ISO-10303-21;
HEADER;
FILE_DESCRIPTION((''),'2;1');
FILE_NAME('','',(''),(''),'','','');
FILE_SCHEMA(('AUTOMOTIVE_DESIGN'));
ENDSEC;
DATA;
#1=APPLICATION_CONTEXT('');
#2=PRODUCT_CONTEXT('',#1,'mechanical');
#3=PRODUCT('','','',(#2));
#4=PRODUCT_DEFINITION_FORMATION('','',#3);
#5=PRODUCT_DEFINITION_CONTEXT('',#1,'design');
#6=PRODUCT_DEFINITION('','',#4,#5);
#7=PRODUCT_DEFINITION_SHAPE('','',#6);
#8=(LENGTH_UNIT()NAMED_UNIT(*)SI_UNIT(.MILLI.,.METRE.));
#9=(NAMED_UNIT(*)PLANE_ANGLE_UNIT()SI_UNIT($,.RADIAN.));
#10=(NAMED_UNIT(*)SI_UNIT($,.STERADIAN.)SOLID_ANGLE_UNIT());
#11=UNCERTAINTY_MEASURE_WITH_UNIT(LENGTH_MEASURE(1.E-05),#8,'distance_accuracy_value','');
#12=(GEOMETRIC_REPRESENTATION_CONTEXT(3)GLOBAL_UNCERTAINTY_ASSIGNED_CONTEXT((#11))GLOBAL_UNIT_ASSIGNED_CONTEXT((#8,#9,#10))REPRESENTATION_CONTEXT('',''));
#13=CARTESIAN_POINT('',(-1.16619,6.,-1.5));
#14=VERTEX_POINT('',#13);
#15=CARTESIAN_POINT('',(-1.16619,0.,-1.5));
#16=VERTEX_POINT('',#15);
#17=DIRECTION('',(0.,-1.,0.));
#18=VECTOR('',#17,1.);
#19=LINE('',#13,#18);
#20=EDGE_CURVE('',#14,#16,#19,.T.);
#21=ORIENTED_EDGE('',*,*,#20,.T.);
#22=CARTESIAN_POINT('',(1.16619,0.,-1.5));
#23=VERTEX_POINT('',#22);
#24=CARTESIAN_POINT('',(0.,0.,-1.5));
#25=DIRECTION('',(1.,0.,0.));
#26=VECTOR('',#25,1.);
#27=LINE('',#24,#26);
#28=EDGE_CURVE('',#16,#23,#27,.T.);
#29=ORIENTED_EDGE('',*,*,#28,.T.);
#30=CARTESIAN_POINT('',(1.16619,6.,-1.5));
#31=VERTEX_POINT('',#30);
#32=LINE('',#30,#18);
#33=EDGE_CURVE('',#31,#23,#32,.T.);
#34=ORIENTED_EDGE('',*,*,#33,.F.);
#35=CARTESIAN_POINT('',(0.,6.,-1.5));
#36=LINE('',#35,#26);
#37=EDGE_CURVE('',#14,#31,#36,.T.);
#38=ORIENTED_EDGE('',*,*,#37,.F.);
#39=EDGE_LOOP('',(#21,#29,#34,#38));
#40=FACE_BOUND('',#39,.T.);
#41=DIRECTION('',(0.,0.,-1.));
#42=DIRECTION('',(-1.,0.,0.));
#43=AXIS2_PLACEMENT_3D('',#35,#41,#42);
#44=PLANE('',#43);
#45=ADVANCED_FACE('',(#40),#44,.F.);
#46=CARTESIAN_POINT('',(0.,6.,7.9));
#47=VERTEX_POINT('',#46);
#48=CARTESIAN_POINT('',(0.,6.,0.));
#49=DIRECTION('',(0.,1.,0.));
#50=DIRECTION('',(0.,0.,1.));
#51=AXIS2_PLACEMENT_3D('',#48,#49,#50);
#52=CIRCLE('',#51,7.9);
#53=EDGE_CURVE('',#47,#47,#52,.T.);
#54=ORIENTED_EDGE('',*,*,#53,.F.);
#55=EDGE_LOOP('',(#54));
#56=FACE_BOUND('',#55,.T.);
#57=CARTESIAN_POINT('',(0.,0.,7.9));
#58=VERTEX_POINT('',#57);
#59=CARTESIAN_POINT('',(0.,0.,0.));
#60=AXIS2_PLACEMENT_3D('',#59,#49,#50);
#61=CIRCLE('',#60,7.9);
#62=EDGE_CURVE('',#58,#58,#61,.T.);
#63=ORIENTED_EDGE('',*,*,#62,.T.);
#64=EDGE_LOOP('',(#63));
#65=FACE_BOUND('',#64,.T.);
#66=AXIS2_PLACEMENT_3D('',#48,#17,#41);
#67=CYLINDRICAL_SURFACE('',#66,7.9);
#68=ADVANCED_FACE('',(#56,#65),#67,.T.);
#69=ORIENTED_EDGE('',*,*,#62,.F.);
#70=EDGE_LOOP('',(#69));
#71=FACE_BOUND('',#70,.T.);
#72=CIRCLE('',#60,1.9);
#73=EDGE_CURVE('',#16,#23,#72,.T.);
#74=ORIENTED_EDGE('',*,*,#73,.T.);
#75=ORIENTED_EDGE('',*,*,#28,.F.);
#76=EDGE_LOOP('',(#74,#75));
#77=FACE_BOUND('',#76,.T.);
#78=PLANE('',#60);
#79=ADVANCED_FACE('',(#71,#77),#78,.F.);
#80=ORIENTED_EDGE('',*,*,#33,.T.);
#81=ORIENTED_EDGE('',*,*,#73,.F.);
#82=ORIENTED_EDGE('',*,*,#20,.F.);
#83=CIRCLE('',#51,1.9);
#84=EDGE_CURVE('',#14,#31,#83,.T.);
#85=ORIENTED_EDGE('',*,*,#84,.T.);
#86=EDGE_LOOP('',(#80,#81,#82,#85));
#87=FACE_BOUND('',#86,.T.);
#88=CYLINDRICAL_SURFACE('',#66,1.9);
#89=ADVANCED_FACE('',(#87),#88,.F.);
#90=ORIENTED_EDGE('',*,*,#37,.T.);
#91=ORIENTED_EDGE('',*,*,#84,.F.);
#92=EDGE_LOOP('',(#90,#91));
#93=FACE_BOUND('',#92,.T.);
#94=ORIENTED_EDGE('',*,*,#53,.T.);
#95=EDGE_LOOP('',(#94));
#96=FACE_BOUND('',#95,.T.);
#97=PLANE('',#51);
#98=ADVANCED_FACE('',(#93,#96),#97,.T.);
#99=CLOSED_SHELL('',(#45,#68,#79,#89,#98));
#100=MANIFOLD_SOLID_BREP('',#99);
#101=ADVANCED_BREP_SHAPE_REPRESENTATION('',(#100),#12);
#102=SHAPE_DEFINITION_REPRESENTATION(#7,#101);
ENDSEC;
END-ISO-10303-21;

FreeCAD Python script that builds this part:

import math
import FreeCAD as App
import Part
import Sketcher
Q = App.Units.Quantity

doc = App.newDocument("Part")
params = doc.addObject("Spreadsheet::Sheet", "Params")
for row, (alias, value) in enumerate([
    ("sketch1_diameter", "15.8 mm"),
    ("sketch1_radius", "1.9 mm"),
    ("pad1_length", "6 mm"),
], start=1):
    params.set(f"A{row}", alias)
    params.set(f"B{row}", "=" + value)
    params.setAlias(f"B{row}", alias)

body = doc.addObject("PartDesign::Body", "Body")

sketch1 = body.newObject("Sketcher::SketchObject", "Sketch")
sketch1.AttachmentSupport = (doc.getObject("XZ_Plane"), [""])
sketch1.MapMode = "FlatFace"
sketch1.addGeometry([
    Part.Circle(App.Vector(0, 0, 0), App.Vector(0, 0, 1), 7.9),
    Part.ArcOfCircle(Part.Circle(App.Vector(0, 0, 0), App.Vector(0, 0, 1), 1.9), math.radians(90), math.radians(232)),
    Part.LineSegment(App.Vector(-1.2, -1.5, 0), App.Vector(1.2, -1.5, 0)),
    Part.ArcOfCircle(Part.Circle(App.Vector(0, 0, 0), App.Vector(0, 0, 1), 1.9), math.radians(-52), math.radians(90)),
], False)
sketch1.addConstraint([
    Sketcher.Constraint("Coincident", 1, 2, 2, 1),
    Sketcher.Constraint("Coincident", 2, 2, 3, 1),
    Sketcher.Constraint("Tangent", 3, 2, 1, 1),
    Sketcher.Constraint("Horizontal", 2),
    Sketcher.Constraint("Coincident", 0, 3, -1, 1),
    Sketcher.Constraint("Coincident", 1, 3, -1, 1),
    Sketcher.Constraint("Equal", 1, 3),
    Sketcher.Constraint("PointOnObject", 3, 2, -2),
    Sketcher.Constraint("Diameter", 0, Q("15.8 mm")),
    Sketcher.Constraint("Radius", 1, Q("1.9 mm")),
    Sketcher.Constraint("DistanceY", 1, 2, -1, 1, Q("1.5 mm")),
])
sketch1.setExpression("Constraints[8]", "Params.sketch1_diameter")
sketch1.setExpression("Constraints[9]", "Params.sketch1_radius")
pad1 = body.newObject("PartDesign::Pad", "Pad")
pad1.Profile = sketch1
pad1.setExpression("Length", "Params.pad1_length")
pad1.Reversed = True

doc.recompute()
